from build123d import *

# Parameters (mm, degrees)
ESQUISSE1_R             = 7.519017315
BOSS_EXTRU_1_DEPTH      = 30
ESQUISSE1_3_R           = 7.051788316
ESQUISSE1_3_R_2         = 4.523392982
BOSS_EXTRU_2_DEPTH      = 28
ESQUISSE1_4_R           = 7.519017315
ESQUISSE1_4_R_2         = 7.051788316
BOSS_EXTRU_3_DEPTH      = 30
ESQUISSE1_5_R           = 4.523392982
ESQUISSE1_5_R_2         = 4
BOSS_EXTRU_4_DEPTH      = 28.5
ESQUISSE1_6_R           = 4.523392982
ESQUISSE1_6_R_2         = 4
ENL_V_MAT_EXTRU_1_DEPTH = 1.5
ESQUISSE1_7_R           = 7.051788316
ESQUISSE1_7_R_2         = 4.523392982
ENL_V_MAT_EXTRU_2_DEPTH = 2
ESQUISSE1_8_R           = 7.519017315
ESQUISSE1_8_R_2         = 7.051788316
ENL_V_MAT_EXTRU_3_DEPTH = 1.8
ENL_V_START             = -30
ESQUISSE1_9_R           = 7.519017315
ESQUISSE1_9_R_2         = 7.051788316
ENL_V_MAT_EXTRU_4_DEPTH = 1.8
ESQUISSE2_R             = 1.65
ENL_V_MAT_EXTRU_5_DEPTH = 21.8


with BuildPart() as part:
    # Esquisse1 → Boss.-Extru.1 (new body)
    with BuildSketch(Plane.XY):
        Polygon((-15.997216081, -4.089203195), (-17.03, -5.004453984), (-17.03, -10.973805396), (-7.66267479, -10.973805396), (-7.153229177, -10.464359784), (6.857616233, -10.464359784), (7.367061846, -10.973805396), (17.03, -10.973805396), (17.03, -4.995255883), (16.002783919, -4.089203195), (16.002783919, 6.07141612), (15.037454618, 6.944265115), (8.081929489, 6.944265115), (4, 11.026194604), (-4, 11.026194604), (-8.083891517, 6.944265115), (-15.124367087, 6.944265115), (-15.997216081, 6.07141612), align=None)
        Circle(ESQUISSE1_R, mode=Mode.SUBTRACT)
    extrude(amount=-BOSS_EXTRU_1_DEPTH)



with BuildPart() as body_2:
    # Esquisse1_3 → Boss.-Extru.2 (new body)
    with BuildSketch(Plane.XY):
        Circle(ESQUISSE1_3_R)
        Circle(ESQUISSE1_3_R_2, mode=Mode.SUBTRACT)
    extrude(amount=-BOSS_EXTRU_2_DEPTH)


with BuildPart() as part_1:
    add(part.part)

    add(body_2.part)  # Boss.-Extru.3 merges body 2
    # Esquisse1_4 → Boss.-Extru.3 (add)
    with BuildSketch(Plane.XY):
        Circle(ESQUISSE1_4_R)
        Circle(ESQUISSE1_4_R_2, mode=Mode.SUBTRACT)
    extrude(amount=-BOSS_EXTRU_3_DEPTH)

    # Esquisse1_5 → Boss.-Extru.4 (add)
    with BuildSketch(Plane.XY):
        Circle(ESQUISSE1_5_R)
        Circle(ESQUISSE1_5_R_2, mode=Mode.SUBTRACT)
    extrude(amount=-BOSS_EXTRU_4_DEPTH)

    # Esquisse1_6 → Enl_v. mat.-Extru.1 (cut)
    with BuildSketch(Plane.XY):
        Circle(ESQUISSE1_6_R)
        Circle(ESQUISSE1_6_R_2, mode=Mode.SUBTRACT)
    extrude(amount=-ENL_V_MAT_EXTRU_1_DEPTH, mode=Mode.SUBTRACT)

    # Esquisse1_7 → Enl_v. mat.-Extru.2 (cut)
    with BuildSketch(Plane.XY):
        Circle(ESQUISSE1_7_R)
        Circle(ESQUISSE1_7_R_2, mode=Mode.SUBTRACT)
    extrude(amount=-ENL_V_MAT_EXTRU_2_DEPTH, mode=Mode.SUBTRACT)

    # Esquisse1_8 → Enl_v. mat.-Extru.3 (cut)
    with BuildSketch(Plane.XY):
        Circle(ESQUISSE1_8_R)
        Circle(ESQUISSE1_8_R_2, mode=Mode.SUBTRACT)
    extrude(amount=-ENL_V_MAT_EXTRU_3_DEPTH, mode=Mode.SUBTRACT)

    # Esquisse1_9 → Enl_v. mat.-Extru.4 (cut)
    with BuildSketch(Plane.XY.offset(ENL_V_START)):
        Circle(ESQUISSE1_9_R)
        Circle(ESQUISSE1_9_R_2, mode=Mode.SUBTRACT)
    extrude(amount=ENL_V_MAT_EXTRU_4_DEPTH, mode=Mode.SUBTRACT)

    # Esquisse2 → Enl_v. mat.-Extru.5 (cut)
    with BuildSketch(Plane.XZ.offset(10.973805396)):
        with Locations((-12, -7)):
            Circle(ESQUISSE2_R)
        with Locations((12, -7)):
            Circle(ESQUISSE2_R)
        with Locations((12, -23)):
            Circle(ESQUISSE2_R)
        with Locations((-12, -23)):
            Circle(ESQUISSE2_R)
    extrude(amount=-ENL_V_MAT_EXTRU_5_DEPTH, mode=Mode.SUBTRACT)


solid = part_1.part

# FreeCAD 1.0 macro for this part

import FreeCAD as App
import Part
import Sketcher
Q = App.Units.Quantity


def add_polygon(sketch, points):
    """Adds a closed chain of lines whose ends are joined by coincident constraints."""
    first, n = sketch.GeometryCount, len(points)
    for a, b in zip(points, points[1:] + points[:1]):
        sketch.addGeometry(Part.LineSegment(App.Vector(*a, 0), App.Vector(*b, 0)), False)
    for i in range(n):
        sketch.addConstraint(Sketcher.Constraint("Coincident", first + i, 2, first + (i + 1) % n, 1))

doc = App.newDocument("Part")
params = doc.addObject("Spreadsheet::Sheet", "Params")
for row, (alias, value) in enumerate([
    ("sketch1_width", "8 mm"),
    ("pad1_length", "30 mm"),
    ("pad2_length", "28 mm"),
    ("pad3_length", "30 mm"),
    ("sketch4_diameter", "8 mm"),
    ("pad4_length", "28.5 mm"),
    ("sketch5_diameter", "8 mm"),
    ("pocket1_length", "1.5 mm"),
    ("pocket2_length", "2 mm"),
    ("pocket3_length", "1.8 mm"),
    ("pocket4_length", "1.8 mm"),
    ("sketch9_diameter", "3.3 mm"),
    ("pocket5_length", "21.8 mm"),
], start=1):
    params.set(f"A{row}", alias)
    params.set(f"B{row}", "=" + value)
    params.setAlias(f"B{row}", alias)

body = doc.addObject("PartDesign::Body", "Body")

sketch1 = body.newObject("Sketcher::SketchObject", "Sketch")
sketch1.AttachmentSupport = (doc.getObject("XY_Plane"), [""])
sketch1.MapMode = "FlatFace"
add_polygon(sketch1, [(-16, -4.1), (-17, -5), (-17, -11), (-7.7, -11), (-7.2, -10.5), (6.9, -10.5), (7.4, -11), (17, -11), (17, -5), (16, -4.1), (16, 6.1), (15, 6.9), (8.1, 6.9), (4, 11), (-4, 11), (-8.1, 6.9), (-15.1, 6.9), (-16, 6.1)])
sketch1.addGeometry(Part.Circle(App.Vector(0, 0, 0), App.Vector(0, 0, 1), 7.5), False)
sketch1.addConstraint([
    Sketcher.Constraint("Vertical", 1),
    Sketcher.Constraint("Horizontal", 2),
    Sketcher.Constraint("Horizontal", 4),
    Sketcher.Constraint("Horizontal", 6),
    Sketcher.Constraint("Vertical", 7),
    Sketcher.Constraint("Vertical", 9),
    Sketcher.Constraint("Horizontal", 11),
    Sketcher.Constraint("Horizontal", 13),
    Sketcher.Constraint("Horizontal", 15),
    Sketcher.Constraint("Vertical", 17),
    Sketcher.Constraint("Coincident", 18, 3, -1, 1),
    Sketcher.Constraint("Symmetric", 1, 2, 6, 2, -2),
    Sketcher.Constraint("Perpendicular", 3, 5),
    Sketcher.Constraint("Parallel", 5, 12),
    Sketcher.Constraint("Perpendicular", 12, 16),
    Sketcher.Constraint("Horizontal", 11, 2, 14, 2),
    Sketcher.Constraint("Horizontal", 9, 2, 16, 2),
    Sketcher.Constraint("Horizontal", 8, 2, 17, 2),
    Sketcher.Constraint("Equal", 3, 5),
    Sketcher.Constraint("DistanceX", 13, 2, 13, 1, Q("8 mm")),
    Sketcher.Constraint("DistanceX", -1, 1, 12, 2, Q("4 mm")),
    Sketcher.Constraint("DistanceX", 0, 2, -1, 1, Q("17.03 mm")),
    Sketcher.Constraint("Diameter", 18, Q("15.038035 mm")),
    Sketcher.Constraint("DistanceX", 6, 1, 6, 2, Q("9.662938 mm")),
    Sketcher.Constraint("DistanceY", 1, 2, 1, 1, Q("5.969351 mm")),
    Sketcher.Constraint("DistanceY", 7, 1, 7, 2, Q("5.97855 mm")),
    Sketcher.Constraint("DistanceY", 9, 1, 9, 2, Q("10.160619 mm")),
    Sketcher.Constraint("Distance", 8, Q("1.36971 mm")),
    Sketcher.Constraint("Distance", 12, Q("5.77272 mm")),
    Sketcher.Constraint("DistanceX", 2, 1, 2, 2, Q("9.367325 mm")),
    Sketcher.Constraint("DistanceX", 4, 1, 4, 2, Q("14.010845 mm")),
    Sketcher.Constraint("DistanceX", 11, 2, 11, 1, Q("6.955525 mm")),
    Sketcher.Constraint("DistanceX", 15, 2, 15, 1, Q("7.040476 mm")),
    Sketcher.Constraint("DistanceY", 3, 2, -1, 1, Q("10.46436 mm")),
    Sketcher.Constraint("DistanceX", 14, 2, -1, 1, Q("8.083892 mm")),
    Sketcher.Constraint("DistanceY", 6, 2, 9, 2, Q("17.045222 mm")),
    Sketcher.Constraint("DistanceY", 9, 2, 10, 2, Q("0.872849 mm")),
])
sketch1.setExpression("Constraints[37]", "Params.sketch1_width")
pad1 = body.newObject("PartDesign::Pad", "Pad")
pad1.Profile = sketch1
pad1.setExpression("Length", "Params.pad1_length")
pad1.Reversed = True
body2 = doc.addObject("PartDesign::Body", "Body001")

sketch2 = body2.newObject("Sketcher::SketchObject", "Sketch001")
sketch2.AttachmentSupport = (doc.getObject("XY_Plane001"), [""])
sketch2.MapMode = "FlatFace"
sketch2.addGeometry([
    Part.Circle(App.Vector(0, 0, 0), App.Vector(0, 0, 1), 7.1),
    Part.Circle(App.Vector(0, 0, 0), App.Vector(0, 0, 1), 4.5),
], False)
sketch2.addConstraint([
    Sketcher.Constraint("Coincident", 0, 3, -1, 1),
    Sketcher.Constraint("Coincident", 1, 3, -1, 1),
    Sketcher.Constraint("Diameter", 0, Q("14.103577 mm")),
    Sketcher.Constraint("Diameter", 1, Q("9.046786 mm")),
])
pad2 = body2.newObject("PartDesign::Pad", "Pad001")
pad2.Profile = sketch2
pad2.setExpression("Length", "Params.pad2_length")
pad2.Reversed = True
body.AllowCompound = True
doc.recompute()

boolean = body.newObject("PartDesign::Boolean", "Boolean")
boolean.Type = "Fuse"
boolean.addObjects([body2])

sketch3 = body.newObject("Sketcher::SketchObject", "Sketch002")
sketch3.AttachmentSupport = (doc.getObject("XY_Plane"), [""])
sketch3.MapMode = "FlatFace"
sketch3.addGeometry([
    Part.Circle(App.Vector(0, 0, 0), App.Vector(0, 0, 1), 8),
    Part.Circle(App.Vector(0, 0, 0), App.Vector(0, 0, 1), 7),
], False)
sketch3.addConstraint([
    Sketcher.Constraint("Coincident", 0, 3, -1, 1),
    Sketcher.Constraint("Coincident", 1, 3, -1, 1),
    Sketcher.Constraint("Diameter", 0, Q("15.038035 mm")),
    Sketcher.Constraint("Diameter", 1, Q("14.103577 mm")),
])
pad3 = body.newObject("PartDesign::Pad", "Pad002")
pad3.Profile = sketch3
pad3.setExpression("Length", "Params.pad3_length")
pad3.Reversed = True

sketch4 = body.newObject("Sketcher::SketchObject", "Sketch003")
sketch4.AttachmentSupport = (doc.getObject("XY_Plane"), [""])
sketch4.MapMode = "FlatFace"
sketch4.addGeometry([
    Part.Circle(App.Vector(0, 0, 0), App.Vector(0, 0, 1), 4.5),
    Part.Circle(App.Vector(0, 0, 0), App.Vector(0, 0, 1), 4),
], False)
sketch4.addConstraint([
    Sketcher.Constraint("Coincident", 0, 3, -1, 1),
    Sketcher.Constraint("Coincident", 1, 3, -1, 1),
    Sketcher.Constraint("Diameter", 1, Q("8 mm")),
    Sketcher.Constraint("Diameter", 0, Q("9.046786 mm")),
])
sketch4.setExpression("Constraints[2]", "Params.sketch4_diameter")
pad4 = body.newObject("PartDesign::Pad", "Pad003")
pad4.Profile = sketch4
pad4.setExpression("Length", "Params.pad4_length")
pad4.Reversed = True

sketch5 = body.newObject("Sketcher::SketchObject", "Sketch004")
sketch5.AttachmentSupport = (doc.getObject("XY_Plane"), [""])
sketch5.MapMode = "FlatFace"
sketch5.addGeometry([
    Part.Circle(App.Vector(0, 0, 0), App.Vector(0, 0, 1), 4.5),
    Part.Circle(App.Vector(0, 0, 0), App.Vector(0, 0, 1), 4),
], False)
sketch5.addConstraint([
    Sketcher.Constraint("Coincident", 0, 3, -1, 1),
    Sketcher.Constraint("Coincident", 1, 3, -1, 1),
    Sketcher.Constraint("Diameter", 1, Q("8 mm")),
    Sketcher.Constraint("Diameter", 0, Q("9.046786 mm")),
])
sketch5.setExpression("Constraints[2]", "Params.sketch5_diameter")
pocket1 = body.newObject("PartDesign::Pocket", "Pocket")
pocket1.Profile = sketch5
pocket1.setExpression("Length", "Params.pocket1_length")

sketch6 = body.newObject("Sketcher::SketchObject", "Sketch005")
sketch6.AttachmentSupport = (doc.getObject("XY_Plane"), [""])
sketch6.MapMode = "FlatFace"
sketch6.addGeometry([
    Part.Circle(App.Vector(0, 0, 0), App.Vector(0, 0, 1), 7.1),
    Part.Circle(App.Vector(0, 0, 0), App.Vector(0, 0, 1), 4.5),
], False)
sketch6.addConstraint([
    Sketcher.Constraint("Coincident", 0, 3, -1, 1),
    Sketcher.Constraint("Coincident", 1, 3, -1, 1),
    Sketcher.Constraint("Diameter", 0, Q("14.103577 mm")),
    Sketcher.Constraint("Diameter", 1, Q("9.046786 mm")),
])
pocket2 = body.newObject("PartDesign::Pocket", "Pocket001")
pocket2.Profile = sketch6
pocket2.setExpression("Length", "Params.pocket2_length")

sketch7 = body.newObject("Sketcher::SketchObject", "Sketch006")
sketch7.AttachmentSupport = (doc.getObject("XY_Plane"), [""])
sketch7.MapMode = "FlatFace"
sketch7.addGeometry([
    Part.Circle(App.Vector(0, 0, 0), App.Vector(0, 0, 1), 8),
    Part.Circle(App.Vector(0, 0, 0), App.Vector(0, 0, 1), 7),
], False)
sketch7.addConstraint([
    Sketcher.Constraint("Coincident", 0, 3, -1, 1),
    Sketcher.Constraint("Coincident", 1, 3, -1, 1),
    Sketcher.Constraint("Diameter", 0, Q("15.038035 mm")),
    Sketcher.Constraint("Diameter", 1, Q("14.103577 mm")),
])
pocket3 = body.newObject("PartDesign::Pocket", "Pocket002")
pocket3.Profile = sketch7
pocket3.setExpression("Length", "Params.pocket3_length")

sketch8 = body.newObject("Sketcher::SketchObject", "Sketch007")
sketch8.AttachmentSupport = (doc.getObject("XY_Plane"), [""])
sketch8.MapMode = "FlatFace"
sketch8.AttachmentOffset = App.Placement(App.Vector(0, 0, -30), App.Rotation())
sketch8.addGeometry([
    Part.Circle(App.Vector(0, 0, 0), App.Vector(0, 0, 1), 8),
    Part.Circle(App.Vector(0, 0, 0), App.Vector(0, 0, 1), 7),
], False)
sketch8.addConstraint([
    Sketcher.Constraint("Coincident", 0, 3, -1, 1),
    Sketcher.Constraint("Coincident", 1, 3, -1, 1),
    Sketcher.Constraint("Diameter", 0, Q("15.038035 mm")),
    Sketcher.Constraint("Diameter", 1, Q("14.103577 mm")),
])
pocket4 = body.newObject("PartDesign::Pocket", "Pocket003")
pocket4.Profile = sketch8
pocket4.setExpression("Length", "Params.pocket4_length")
pocket4.Reversed = True

sketch9 = body.newObject("Sketcher::SketchObject", "Sketch008")
sketch9.AttachmentSupport = (doc.getObject("XZ_Plane"), [""])
sketch9.MapMode = "FlatFace"
sketch9.AttachmentOffset = App.Placement(App.Vector(0, 0, 10.973805), App.Rotation())
sketch9.addGeometry([
    Part.Circle(App.Vector(-12, -7, 0), App.Vector(0, 0, 1), 1.6),
    Part.Circle(App.Vector(12, -7, 0), App.Vector(0, 0, 1), 1.6),
    Part.Circle(App.Vector(12, -23, 0), App.Vector(0, 0, 1), 1.6),
    Part.Circle(App.Vector(-12, -23, 0), App.Vector(0, 0, 1), 1.6),
], False)
sketch9.addConstraint([
    Sketcher.Constraint("Equal", 0, 1),
    Sketcher.Constraint("Equal", 1, 2),
    Sketcher.Constraint("Equal", 2, 3),
    Sketcher.Constraint("Symmetric", 0, 3, 1, 3, -2),
    Sketcher.Constraint("Symmetric", 2, 3, 3, 3, -2),
    Sketcher.Constraint("Vertical", 1, 3, 2, 3),
    Sketcher.Constraint("Diameter", 0, Q("3.3 mm")),
    Sketcher.Constraint("DistanceX", 0, 3, -1, 1, Q("12 mm")),
    Sketcher.Constraint("DistanceY", 0, 3, -1, 1, Q("7 mm")),
    Sketcher.Constraint("DistanceY", 2, 3, -1, 1, Q("23 mm")),
])
sketch9.setExpression("Constraints[6]", "Params.sketch9_diameter")
pocket5 = body.newObject("PartDesign::Pocket", "Pocket004")
pocket5.Profile = sketch9
pocket5.setExpression("Length", "Params.pocket5_length")

doc.recompute()
